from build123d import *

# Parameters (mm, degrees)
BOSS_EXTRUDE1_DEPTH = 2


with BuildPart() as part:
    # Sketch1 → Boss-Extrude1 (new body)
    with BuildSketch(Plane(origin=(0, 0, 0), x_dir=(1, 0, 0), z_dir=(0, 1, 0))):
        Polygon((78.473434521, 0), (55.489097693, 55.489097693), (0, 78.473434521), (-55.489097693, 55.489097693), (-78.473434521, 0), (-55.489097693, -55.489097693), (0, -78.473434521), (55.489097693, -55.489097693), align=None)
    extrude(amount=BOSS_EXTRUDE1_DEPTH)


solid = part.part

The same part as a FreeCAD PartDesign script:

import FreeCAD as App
import Part
import Sketcher

V = App.Vector
Q = App.Units.Quantity


def add_polygon(sketch, points):
    """Adds a closed chain of lines whose ends are joined by coincident constraints."""
    first, n = sketch.GeometryCount, len(points)
    for a, b in zip(points, points[1:] + points[:1]):
        sketch.addGeometry(Part.LineSegment(App.Vector(*a, 0), App.Vector(*b, 0)), False)
    for i in range(n):
        sketch.addConstraint(Sketcher.Constraint("Coincident", first + i, 2, first + (i + 1) % n, 1))

doc = App.newDocument("Part")
body = doc.addObject("PartDesign::Body", "Body")

sketch1 = body.newObject("Sketcher::SketchObject", "Sketch")
sketch1.AttachmentSupport = (doc.getObject("XZ_Plane"), [""])
sketch1.MapMode = "FlatFace"
add_polygon(sketch1, [(78, 0), (55, -55), (0, -78), (-55, -55), (-78, 0), (-55, 55), (0, 78), (55, 55)])
sketch1.addConstraint(Sketcher.Constraint("Symmetric", 0, 2, 4, 2, -1, 1))
sketch1.addConstraint(Sketcher.Constraint("Symmetric", 1, 2, 5, 2, -1, 1))
sketch1.addConstraint(Sketcher.Constraint("Symmetric", 2, 2, 6, 2, -1, 1))
sketch1.addConstraint(Sketcher.Constraint("Symmetric", 3, 2, 7, 2, -1, 1))
sketch1.addConstraint(Sketcher.Constraint("Symmetric", 0, 2, 2, 2, -2))
sketch1.addConstraint(Sketcher.Constraint("PointOnObject", 1, 2, -2))
sketch1.addConstraint(Sketcher.Constraint("PointOnObject", 3, 2, -1))
sketch1.addConstraint(Sketcher.Constraint("Perpendicular", 0, 2))
sketch1.addConstraint(Sketcher.Constraint("Equal", 0, 1))
sketch1.addConstraint(Sketcher.Constraint("Angle", 0, Q("-112.5 deg")))
sketch1.addConstraint(Sketcher.Constraint("DistanceY", 1, 2, 5, 2, Q("156.946869 mm")))
pad1 = body.newObject("PartDesign::Pad", "Pad")
pad1.Profile = sketch1
pad1.Length = 2
pad1.Reversed = True

doc.recompute()
